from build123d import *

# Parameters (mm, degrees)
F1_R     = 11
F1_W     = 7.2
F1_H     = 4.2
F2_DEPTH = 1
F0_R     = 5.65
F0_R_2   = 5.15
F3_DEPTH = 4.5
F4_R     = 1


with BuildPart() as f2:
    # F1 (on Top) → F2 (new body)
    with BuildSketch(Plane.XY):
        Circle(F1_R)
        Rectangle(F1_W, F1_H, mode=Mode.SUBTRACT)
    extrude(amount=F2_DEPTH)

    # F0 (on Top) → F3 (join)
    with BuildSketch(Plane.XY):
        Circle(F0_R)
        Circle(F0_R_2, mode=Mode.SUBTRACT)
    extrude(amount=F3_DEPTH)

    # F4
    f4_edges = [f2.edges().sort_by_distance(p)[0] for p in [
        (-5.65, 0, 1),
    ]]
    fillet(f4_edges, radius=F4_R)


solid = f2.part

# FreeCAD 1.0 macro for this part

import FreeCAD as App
import Part
import Sketcher

V = App.Vector
Q = App.Units.Quantity


def edges_at(feature, points):
    """Names of the edges that pass closest to the given points."""
    edges = feature.Shape.Edges
    near = lambda p: min(range(len(edges)), key=lambda i: edges[i].distToShape(Part.Vertex(*p))[0])
    return sorted({f"Edge{near(p) + 1}" for p in points})

doc = App.newDocument("Part")
params = doc.addObject("Spreadsheet::Sheet", "Params")
for row, (alias, value) in enumerate([
    ("sketch1_diameter", "22 mm"),
    ("sketch1_width", "7.2 mm"),
    ("sketch1_height", "4.2 mm"),
    ("pad1_length", "1 mm"),
    ("sketch2_diameter", "11.3 mm"),
    ("sketch2_diameter2", "10.3 mm"),
    ("pad2_length", "4.5 mm"),
    ("fillet_radius", "1 mm"),
], start=1):
    params.set(f"A{row}", alias)
    params.set(f"B{row}", "=" + value)
    params.setAlias(f"B{row}", alias)

body = doc.addObject("PartDesign::Body", "Body")

# Sketch on XY plane
sketch1 = body.newObject("Sketcher::SketchObject", "Sketch")
sketch1.AttachmentSupport = (doc.getObject("XY_Plane"), [""])
sketch1.MapMode = "FlatFace"
sketch1.addGeometry([
    Part.Circle(V(0, 0, 0), V(0, 0, 1), 11),  # 0
    Part.LineSegment(V(3.6, -2.1, 0), V(-3.6, -2.1, 0)),  # 1
    Part.LineSegment(V(-3.6, -2.1, 0), V(-3.6, 2.1, 0)),  # 2
    Part.LineSegment(V(-3.6, 2.1, 0), V(3.6, 2.1, 0)),  # 3
    Part.LineSegment(V(3.6, 2.1, 0), V(3.6, -2.1, 0)),  # 4
], False)
sketch1.addConstraint([
    Sketcher.Constraint("Coincident", 1, 2, 2, 1),
    Sketcher.Constraint("Coincident", 2, 2, 3, 1),
    Sketcher.Constraint("Coincident", 3, 2, 4, 1),
    Sketcher.Constraint("Coincident", 4, 2, 1, 1),
    Sketcher.Constraint("Horizontal", 1),
    Sketcher.Constraint("Vertical", 2),
    Sketcher.Constraint("Horizontal", 3),
    Sketcher.Constraint("Vertical", 4),
    Sketcher.Constraint("Coincident", 0, 3, -1, 1),
    Sketcher.Constraint("Symmetric", 1, 2, 3, 2, -1, 1),
    Sketcher.Constraint("Diameter", 0, Q("22 mm")),
    Sketcher.Constraint("DistanceX", 1, 2, 1, 1, Q("7.2 mm")),
    Sketcher.Constraint("DistanceY", 2, 1, 2, 2, Q("4.2 mm")),
])
sketch1.setExpression("Constraints[10]", "Params.sketch1_diameter")
sketch1.setExpression("Constraints[11]", "Params.sketch1_width")
sketch1.setExpression("Constraints[12]", "Params.sketch1_height")
pad1 = body.newObject("PartDesign::Pad", "Pad")
pad1.Profile = sketch1
pad1.setExpression("Length", "Params.pad1_length")

# Sketch on XY plane
sketch2 = body.newObject("Sketcher::SketchObject", "Sketch001")
sketch2.AttachmentSupport = (doc.getObject("XY_Plane"), [""])
sketch2.MapMode = "FlatFace"
sketch2.addGeometry([
    Part.Circle(V(0, 0, 0), V(0, 0, 1), 6),
    Part.Circle(V(0, 0, 0), V(0, 0, 1), 5),
], False)
sketch2.addConstraint([
    Sketcher.Constraint("Coincident", 0, 3, -1, 1),
    Sketcher.Constraint("Coincident", 1, 3, -1, 1),
    Sketcher.Constraint("Diameter", 0, Q("11.3 mm")),
    Sketcher.Constraint("Diameter", 1, Q("10.3 mm")),
])
sketch2.setExpression("Constraints[2]", "Params.sketch2_diameter")
sketch2.setExpression("Constraints[3]", "Params.sketch2_diameter2")
pad2 = body.newObject("PartDesign::Pad", "Pad001")
pad2.Profile = sketch2
pad2.setExpression("Length", "Params.pad2_length")
doc.recompute()

fillet = body.newObject("PartDesign::Fillet", "Fillet")
fillet.Base = (pad2, edges_at(pad2, [(-5.65, 0, 1)]))
fillet.setExpression("Radius", "Params.fillet_radius")

doc.recompute()
